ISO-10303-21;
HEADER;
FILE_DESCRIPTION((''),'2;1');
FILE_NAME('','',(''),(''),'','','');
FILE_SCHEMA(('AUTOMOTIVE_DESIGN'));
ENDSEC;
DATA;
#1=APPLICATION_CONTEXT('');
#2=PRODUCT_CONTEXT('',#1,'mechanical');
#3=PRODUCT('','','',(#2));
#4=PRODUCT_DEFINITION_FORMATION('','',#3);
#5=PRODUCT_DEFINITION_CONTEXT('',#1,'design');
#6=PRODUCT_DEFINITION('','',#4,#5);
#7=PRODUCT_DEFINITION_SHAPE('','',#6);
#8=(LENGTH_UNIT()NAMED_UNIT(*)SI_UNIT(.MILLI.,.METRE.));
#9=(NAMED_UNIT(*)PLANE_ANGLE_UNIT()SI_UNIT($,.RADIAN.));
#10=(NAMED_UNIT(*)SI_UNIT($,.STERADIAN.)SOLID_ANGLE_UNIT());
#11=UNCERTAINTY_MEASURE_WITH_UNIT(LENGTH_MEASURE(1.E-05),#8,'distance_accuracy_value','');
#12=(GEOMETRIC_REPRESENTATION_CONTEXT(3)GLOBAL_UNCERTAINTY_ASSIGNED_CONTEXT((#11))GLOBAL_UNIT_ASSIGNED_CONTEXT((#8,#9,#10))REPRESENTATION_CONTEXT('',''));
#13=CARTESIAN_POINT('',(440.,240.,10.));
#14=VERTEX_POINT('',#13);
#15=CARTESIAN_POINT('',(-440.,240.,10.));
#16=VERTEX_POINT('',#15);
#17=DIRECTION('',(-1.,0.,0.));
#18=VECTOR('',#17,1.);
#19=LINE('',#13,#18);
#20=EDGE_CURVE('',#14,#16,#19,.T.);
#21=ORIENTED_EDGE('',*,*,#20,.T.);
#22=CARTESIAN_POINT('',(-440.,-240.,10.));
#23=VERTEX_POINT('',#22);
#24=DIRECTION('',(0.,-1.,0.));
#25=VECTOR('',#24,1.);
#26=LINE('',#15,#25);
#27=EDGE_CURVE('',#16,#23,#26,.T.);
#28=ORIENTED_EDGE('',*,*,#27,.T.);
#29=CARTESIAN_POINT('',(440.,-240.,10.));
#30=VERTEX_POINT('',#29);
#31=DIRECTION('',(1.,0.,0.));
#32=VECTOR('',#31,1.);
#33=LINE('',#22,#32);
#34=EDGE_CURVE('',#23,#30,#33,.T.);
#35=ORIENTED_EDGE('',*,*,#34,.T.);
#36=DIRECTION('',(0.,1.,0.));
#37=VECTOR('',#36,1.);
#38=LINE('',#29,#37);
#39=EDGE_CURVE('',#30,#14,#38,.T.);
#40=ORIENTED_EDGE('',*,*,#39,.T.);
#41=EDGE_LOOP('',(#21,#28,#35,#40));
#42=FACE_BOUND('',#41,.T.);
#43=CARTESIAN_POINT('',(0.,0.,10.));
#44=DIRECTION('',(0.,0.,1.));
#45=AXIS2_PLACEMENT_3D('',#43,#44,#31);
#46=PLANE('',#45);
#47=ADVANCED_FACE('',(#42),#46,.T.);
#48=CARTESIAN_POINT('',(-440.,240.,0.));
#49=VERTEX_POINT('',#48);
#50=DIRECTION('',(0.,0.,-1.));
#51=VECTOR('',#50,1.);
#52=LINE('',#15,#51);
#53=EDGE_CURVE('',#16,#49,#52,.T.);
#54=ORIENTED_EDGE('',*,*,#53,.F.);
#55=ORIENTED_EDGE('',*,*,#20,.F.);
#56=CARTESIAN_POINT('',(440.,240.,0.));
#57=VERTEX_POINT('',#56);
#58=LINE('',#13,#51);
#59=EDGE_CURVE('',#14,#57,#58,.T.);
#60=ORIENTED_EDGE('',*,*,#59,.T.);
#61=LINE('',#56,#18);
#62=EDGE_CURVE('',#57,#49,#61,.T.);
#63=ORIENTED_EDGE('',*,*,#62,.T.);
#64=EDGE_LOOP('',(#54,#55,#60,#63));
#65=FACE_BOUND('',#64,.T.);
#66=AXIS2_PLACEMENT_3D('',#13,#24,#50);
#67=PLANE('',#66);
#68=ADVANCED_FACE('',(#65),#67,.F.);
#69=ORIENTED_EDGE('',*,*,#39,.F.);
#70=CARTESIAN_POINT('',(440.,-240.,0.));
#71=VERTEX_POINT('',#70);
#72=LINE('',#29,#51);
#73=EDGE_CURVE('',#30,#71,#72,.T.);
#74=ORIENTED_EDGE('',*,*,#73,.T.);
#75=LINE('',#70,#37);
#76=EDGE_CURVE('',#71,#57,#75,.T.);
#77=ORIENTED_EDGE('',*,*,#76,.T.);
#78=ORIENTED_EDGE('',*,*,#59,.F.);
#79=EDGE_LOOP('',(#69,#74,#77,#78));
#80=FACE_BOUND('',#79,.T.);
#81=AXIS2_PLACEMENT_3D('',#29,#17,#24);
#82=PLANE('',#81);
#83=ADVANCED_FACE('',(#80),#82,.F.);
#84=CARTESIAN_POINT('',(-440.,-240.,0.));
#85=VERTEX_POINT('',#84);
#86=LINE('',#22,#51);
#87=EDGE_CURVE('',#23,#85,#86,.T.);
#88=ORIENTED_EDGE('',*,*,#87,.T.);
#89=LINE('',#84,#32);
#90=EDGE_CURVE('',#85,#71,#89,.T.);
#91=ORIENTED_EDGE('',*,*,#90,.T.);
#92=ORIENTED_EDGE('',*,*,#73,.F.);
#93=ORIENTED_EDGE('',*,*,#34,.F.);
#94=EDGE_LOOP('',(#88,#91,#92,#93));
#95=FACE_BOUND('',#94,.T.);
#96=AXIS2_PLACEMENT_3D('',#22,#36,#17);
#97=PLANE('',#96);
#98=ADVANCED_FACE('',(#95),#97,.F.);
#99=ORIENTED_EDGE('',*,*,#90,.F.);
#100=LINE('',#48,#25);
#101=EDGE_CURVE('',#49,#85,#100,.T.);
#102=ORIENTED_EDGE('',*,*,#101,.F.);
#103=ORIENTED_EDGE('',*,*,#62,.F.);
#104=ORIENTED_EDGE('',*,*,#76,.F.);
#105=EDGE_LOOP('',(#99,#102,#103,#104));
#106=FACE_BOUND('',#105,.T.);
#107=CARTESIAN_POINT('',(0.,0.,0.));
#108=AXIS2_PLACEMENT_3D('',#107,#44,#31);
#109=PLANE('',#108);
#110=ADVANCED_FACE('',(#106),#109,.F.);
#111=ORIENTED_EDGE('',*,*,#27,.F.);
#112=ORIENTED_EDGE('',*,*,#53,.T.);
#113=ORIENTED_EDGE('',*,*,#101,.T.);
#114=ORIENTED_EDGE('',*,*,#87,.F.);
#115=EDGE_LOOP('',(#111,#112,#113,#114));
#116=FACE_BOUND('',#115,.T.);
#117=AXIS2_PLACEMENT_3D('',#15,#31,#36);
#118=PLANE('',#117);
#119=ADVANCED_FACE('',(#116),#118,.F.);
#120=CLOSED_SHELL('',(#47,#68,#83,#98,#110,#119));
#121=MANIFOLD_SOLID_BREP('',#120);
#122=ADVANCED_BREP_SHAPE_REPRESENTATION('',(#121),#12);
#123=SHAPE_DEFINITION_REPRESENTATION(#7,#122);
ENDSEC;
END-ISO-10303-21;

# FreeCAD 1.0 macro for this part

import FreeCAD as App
import Part
import Sketcher
from FreeCAD import Vector
Q = App.Units.Quantity


def add_polygon(sketch, points):
    """Adds a closed chain of lines whose ends are joined by coincident constraints."""
    first, n = sketch.GeometryCount, len(points)
    for a, b in zip(points, points[1:] + points[:1]):
        sketch.addGeometry(Part.LineSegment(App.Vector(*a, 0), App.Vector(*b, 0)), False)
    for i in range(n):
        sketch.addConstraint(Sketcher.Constraint("Coincident", first + i, 2, first + (i + 1) % n, 1))

doc = App.newDocument("Part")
params = doc.addObject("Spreadsheet::Sheet", "Params")
for row, (alias, value) in enumerate([
    ("sketch1_width", "880 mm"),
    ("sketch1_height", "480 mm"),
    ("pad1_length", "10 mm"),
], start=1):
    params.set(f"A{row}", alias)
    params.set(f"B{row}", "=" + value)
    params.setAlias(f"B{row}", alias)

body = doc.addObject("PartDesign::Body", "Body")

# Sketch on XY plane
sketch1 = body.newObject("Sketcher::SketchObject", "Sketch")
sketch1.AttachmentSupport = (doc.getObject("XY_Plane"), [""])
sketch1.MapMode = "FlatFace"
add_polygon(sketch1, [(-440, 240), (-440, -240), (440, -240), (440, 240)])  # lines 0-3
sketch1.addConstraint(Sketcher.Constraint("Vertical", 0))
sketch1.addConstraint(Sketcher.Constraint("Horizontal", 1))
sketch1.addConstraint(Sketcher.Constraint("Vertical", 2))
sketch1.addConstraint(Sketcher.Constraint("Horizontal", 3))
sketch1.addConstraint(Sketcher.Constraint("Symmetric", 0, 2, 2, 2, -1, 1))
sketch1.addConstraint(Sketcher.Constraint("DistanceX", 1, 1, 1, 2, Q("880 mm")))
sketch1.addConstraint(Sketcher.Constraint("DistanceY", 0, 2, 0, 1, Q("480 mm")))
sketch1.setExpression("Constraints[9]", "Params.sketch1_width")
sketch1.setExpression("Constraints[10]", "Params.sketch1_height")
pad1 = body.newObject("PartDesign::Pad", "Pad")
pad1.Profile = sketch1
pad1.setExpression("Length", "Params.pad1_length")

doc.recompute()
